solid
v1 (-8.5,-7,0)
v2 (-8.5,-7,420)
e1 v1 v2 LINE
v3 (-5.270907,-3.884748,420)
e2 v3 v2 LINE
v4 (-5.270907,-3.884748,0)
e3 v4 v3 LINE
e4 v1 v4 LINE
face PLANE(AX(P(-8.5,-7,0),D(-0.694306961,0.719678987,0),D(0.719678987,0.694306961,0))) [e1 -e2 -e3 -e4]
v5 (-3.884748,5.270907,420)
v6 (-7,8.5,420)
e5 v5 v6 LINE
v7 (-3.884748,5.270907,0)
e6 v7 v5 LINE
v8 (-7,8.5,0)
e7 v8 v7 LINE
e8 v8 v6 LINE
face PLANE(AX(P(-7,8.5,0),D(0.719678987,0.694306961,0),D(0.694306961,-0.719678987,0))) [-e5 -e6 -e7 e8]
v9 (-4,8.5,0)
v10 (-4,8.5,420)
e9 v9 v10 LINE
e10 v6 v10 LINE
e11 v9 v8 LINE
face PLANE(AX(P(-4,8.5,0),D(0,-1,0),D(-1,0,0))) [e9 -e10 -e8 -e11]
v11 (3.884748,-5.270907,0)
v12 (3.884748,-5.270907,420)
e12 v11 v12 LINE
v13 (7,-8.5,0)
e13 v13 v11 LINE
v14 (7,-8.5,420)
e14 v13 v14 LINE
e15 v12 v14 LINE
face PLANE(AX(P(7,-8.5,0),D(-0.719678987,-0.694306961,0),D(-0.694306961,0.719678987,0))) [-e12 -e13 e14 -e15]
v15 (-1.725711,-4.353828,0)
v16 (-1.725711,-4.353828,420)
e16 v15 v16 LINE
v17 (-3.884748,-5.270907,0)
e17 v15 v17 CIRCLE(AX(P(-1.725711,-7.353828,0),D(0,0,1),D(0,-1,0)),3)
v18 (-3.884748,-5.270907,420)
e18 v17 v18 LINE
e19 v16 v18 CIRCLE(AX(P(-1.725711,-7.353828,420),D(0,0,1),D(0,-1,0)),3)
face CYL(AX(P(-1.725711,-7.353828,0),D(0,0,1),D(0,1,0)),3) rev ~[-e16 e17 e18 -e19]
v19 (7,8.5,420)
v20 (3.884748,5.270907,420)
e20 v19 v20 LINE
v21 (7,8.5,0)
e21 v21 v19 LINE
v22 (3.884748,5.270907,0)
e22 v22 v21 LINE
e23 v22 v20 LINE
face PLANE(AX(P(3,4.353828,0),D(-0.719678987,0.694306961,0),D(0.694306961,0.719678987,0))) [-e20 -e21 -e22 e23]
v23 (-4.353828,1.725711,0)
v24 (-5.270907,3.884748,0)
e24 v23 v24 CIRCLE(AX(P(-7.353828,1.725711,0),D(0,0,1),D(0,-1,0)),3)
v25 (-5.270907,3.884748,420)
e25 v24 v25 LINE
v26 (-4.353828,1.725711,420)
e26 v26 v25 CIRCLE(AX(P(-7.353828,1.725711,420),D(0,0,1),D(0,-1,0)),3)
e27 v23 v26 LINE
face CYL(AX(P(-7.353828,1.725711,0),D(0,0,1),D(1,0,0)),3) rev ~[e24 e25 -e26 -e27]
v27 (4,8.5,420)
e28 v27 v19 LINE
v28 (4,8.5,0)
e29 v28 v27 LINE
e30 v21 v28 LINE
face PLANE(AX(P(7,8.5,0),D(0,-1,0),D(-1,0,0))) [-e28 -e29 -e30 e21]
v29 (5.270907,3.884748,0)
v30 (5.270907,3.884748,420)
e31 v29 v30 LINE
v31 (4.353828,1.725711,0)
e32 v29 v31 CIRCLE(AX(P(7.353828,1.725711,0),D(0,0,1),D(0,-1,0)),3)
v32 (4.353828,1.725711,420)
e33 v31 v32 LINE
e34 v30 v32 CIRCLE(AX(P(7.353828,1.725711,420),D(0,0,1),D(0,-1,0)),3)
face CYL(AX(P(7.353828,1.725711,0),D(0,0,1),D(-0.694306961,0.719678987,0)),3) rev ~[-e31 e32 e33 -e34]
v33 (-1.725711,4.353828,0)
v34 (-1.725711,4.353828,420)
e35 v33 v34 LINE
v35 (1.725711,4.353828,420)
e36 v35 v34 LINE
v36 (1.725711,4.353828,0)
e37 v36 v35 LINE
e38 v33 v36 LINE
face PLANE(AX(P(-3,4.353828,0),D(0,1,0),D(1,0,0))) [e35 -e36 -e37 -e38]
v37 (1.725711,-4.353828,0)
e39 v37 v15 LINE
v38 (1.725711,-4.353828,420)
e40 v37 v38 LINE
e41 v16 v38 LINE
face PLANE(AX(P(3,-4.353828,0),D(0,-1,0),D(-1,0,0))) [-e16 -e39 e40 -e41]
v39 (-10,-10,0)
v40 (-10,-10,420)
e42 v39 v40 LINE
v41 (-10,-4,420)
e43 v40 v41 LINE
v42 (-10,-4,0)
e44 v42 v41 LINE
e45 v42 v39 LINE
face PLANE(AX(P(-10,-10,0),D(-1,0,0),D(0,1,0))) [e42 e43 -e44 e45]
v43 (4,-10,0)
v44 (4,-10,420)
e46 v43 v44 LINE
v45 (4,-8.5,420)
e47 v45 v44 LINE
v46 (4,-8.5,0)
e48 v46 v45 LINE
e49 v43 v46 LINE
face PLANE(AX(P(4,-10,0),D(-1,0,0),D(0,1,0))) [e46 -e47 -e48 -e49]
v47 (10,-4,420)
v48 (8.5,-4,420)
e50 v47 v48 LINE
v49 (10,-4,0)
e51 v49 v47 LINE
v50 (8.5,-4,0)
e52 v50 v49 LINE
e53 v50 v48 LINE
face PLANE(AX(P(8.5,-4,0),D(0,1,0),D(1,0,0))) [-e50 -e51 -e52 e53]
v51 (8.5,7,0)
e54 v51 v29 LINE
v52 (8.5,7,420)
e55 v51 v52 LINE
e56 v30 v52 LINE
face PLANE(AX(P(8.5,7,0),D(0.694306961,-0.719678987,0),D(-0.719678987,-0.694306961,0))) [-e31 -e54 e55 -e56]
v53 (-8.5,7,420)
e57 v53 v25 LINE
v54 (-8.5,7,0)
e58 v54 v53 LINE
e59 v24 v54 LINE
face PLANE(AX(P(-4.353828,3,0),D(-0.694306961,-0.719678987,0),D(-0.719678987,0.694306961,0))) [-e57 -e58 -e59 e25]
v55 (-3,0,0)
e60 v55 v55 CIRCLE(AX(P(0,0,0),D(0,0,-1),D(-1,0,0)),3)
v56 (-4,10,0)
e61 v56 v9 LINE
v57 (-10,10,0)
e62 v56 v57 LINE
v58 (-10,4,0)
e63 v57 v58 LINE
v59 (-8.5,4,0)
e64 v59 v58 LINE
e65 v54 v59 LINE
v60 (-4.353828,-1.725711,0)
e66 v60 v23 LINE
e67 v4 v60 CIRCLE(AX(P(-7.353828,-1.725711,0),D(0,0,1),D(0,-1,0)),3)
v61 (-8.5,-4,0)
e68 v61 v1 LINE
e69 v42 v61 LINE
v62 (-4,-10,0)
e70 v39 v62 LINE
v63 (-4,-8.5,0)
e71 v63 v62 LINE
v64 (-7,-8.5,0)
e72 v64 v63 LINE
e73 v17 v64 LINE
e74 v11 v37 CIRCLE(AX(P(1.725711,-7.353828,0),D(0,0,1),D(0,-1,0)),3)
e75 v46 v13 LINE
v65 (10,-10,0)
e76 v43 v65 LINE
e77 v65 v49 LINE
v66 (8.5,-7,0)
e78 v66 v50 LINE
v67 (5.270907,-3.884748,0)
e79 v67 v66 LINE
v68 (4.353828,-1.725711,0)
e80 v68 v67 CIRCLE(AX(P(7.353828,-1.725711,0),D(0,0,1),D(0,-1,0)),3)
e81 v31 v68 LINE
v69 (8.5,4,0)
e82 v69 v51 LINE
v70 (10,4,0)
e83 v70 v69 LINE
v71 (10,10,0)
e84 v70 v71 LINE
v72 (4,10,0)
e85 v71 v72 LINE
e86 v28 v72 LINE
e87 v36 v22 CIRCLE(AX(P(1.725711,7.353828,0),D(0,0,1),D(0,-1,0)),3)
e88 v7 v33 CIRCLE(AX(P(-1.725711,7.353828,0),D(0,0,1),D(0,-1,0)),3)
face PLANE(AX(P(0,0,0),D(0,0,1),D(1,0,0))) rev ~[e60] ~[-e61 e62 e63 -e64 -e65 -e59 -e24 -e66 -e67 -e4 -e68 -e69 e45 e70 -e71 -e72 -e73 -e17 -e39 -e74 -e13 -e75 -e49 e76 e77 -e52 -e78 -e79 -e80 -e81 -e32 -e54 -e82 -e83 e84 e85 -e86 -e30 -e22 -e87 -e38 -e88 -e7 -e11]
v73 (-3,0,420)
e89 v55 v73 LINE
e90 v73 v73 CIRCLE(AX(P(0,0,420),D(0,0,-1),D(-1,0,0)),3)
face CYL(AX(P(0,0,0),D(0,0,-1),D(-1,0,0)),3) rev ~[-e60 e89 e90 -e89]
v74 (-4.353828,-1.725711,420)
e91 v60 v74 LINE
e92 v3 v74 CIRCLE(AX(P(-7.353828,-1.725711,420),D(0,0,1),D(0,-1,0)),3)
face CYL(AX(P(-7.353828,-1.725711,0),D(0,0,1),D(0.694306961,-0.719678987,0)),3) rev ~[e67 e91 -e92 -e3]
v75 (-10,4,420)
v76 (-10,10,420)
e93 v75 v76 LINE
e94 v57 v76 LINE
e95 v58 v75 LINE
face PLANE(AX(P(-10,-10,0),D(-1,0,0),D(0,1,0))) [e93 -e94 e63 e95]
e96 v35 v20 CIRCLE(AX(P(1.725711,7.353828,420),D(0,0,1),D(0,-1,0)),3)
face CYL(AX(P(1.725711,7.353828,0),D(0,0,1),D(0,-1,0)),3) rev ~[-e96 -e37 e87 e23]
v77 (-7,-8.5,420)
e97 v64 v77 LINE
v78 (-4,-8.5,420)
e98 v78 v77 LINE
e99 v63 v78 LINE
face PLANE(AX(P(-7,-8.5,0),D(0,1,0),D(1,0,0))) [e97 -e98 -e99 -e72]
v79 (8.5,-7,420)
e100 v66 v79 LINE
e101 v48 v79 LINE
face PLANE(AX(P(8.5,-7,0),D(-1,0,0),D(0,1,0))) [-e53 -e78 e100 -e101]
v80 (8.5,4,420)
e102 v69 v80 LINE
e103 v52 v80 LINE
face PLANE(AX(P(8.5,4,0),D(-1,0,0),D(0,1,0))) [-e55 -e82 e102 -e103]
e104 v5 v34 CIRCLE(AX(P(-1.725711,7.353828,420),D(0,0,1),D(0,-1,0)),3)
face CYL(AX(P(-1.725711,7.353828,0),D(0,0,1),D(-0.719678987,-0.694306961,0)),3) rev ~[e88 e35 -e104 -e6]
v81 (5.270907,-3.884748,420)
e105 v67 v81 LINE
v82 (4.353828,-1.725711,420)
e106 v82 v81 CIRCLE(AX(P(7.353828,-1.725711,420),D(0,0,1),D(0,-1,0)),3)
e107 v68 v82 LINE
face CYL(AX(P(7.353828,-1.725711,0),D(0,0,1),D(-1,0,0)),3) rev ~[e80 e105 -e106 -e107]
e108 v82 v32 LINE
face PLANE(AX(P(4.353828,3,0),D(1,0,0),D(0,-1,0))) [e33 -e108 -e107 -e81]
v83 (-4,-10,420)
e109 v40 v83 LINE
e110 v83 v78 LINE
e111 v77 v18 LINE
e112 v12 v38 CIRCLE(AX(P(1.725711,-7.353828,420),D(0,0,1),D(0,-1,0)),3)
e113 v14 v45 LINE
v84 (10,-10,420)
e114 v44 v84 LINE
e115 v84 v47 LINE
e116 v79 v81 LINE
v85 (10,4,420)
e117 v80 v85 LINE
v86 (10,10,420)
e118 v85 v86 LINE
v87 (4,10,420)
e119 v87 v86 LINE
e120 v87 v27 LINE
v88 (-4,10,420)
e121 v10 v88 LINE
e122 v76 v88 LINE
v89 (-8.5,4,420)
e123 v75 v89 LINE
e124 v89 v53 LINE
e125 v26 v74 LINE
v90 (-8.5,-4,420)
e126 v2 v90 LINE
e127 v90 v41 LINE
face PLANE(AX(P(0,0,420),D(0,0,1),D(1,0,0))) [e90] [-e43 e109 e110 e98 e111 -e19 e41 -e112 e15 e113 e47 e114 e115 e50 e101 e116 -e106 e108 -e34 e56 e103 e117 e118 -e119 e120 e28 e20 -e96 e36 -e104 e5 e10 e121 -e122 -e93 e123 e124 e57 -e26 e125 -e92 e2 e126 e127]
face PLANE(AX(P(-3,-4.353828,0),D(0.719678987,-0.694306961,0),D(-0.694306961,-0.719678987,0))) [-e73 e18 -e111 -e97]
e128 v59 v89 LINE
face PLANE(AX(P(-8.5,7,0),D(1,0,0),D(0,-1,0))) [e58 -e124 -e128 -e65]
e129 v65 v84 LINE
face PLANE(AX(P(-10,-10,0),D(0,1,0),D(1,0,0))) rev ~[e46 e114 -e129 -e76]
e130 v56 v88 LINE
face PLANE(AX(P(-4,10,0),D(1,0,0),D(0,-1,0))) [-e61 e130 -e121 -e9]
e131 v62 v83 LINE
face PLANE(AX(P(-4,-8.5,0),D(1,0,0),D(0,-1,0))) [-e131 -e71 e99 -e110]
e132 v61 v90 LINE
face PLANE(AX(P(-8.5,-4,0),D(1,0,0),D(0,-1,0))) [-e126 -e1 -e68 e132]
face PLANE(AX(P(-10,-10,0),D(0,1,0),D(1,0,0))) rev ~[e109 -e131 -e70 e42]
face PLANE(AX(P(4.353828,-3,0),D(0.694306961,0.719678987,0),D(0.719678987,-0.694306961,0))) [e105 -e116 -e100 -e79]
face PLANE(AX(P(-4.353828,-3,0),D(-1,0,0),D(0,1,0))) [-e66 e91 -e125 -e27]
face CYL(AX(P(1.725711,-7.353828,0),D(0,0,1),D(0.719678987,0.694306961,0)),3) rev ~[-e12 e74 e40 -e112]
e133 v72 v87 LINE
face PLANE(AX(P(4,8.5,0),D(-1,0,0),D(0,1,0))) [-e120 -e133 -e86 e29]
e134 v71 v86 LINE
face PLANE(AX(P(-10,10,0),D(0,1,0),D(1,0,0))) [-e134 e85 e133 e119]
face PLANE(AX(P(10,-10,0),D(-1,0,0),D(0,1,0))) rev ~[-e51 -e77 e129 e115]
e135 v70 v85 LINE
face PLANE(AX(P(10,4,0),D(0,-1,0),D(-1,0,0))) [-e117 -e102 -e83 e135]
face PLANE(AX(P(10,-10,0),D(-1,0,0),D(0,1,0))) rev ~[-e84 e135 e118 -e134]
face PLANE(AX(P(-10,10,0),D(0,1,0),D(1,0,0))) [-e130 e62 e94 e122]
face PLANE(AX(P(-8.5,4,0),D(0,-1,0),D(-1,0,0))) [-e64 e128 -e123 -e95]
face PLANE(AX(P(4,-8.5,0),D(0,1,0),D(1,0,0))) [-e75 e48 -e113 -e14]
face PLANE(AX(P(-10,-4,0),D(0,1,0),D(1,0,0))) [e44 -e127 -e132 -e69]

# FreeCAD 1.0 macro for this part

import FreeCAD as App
import Part
import Sketcher
Q = App.Units.Quantity


def edges_at(feature, points):
    """Names of the edges that pass closest to the given points."""
    edges = feature.Shape.Edges
    near = lambda p: min(range(len(edges)), key=lambda i: edges[i].distToShape(Part.Vertex(*p))[0])
    return sorted({f"Edge{near(p) + 1}" for p in points})


def add_polygon(sketch, points):
    """Adds a closed chain of lines whose ends are joined by coincident constraints."""
    first, n = sketch.GeometryCount, len(points)
    for a, b in zip(points, points[1:] + points[:1]):
        sketch.addGeometry(Part.LineSegment(App.Vector(*a, 0), App.Vector(*b, 0)), False)
    for i in range(n):
        sketch.addConstraint(Sketcher.Constraint("Coincident", first + i, 2, first + (i + 1) % n, 1))

doc = App.newDocument("Part")
body = doc.addObject("PartDesign::Body", "Body")

# Sketch on XY plane
sketch1 = body.newObject("Sketcher::SketchObject", "Sketch")
sketch1.AttachmentSupport = (doc.getObject("XY_Plane"), [""])
sketch1.MapMode = "FlatFace"
add_polygon(sketch1, [(-10, 10), (-10, -10), (10, -10), (10, 10)])  # lines 0-3
sketch1.addConstraint([
    Sketcher.Constraint("Vertical", 0),
    Sketcher.Constraint("Horizontal", 1),
    Sketcher.Constraint("Vertical", 2),
    Sketcher.Constraint("Horizontal", 3),
    Sketcher.Constraint("Symmetric", 0, 2, 2, 2, -1, 1),
    Sketcher.Constraint("Equal", 3, 0),
    Sketcher.Constraint("DistanceX", 1, 1, 1, 2, Q("20 mm")),
])
pad1 = body.newObject("PartDesign::Pad", "Pad")
pad1.Profile = sketch1
pad1.Length = 420

# Sketch on XY plane
sketch2 = body.newObject("Sketcher::SketchObject", "Sketch001")
sketch2.AttachmentSupport = (doc.getObject("XY_Plane"), [""])
sketch2.MapMode = "FlatFace"
sketch2.addGeometry(Part.Circle(App.Vector(0, 0, 0), App.Vector(0, 0, 1), 3), False)  # 0
add_polygon(sketch2, [(8.5, 4), (10, 4), (10, -4), (8.5, -4), (8.5, -7), (4.4, -3), (4.4, 3), (8.5, 7)])  # lines 1-8
add_polygon(sketch2, [(-4, 8.5), (-4, 10), (4, 10), (4, 8.5), (7, 8.5), (3, 4.4), (-3, 4.4), (-7, 8.5)])  # lines 9-16
add_polygon(sketch2, [(-8.5, -4), (-10, -4), (-10, 4), (-8.5, 4), (-8.5, 7), (-4.4, 3), (-4.4, -3), (-8.5, -7)])  # lines 17-24
add_polygon(sketch2, [(4, -8.5), (4, -10), (-4, -10), (-4, -8.5), (-7, -8.5), (-3, -4.4), (3, -4.4), (7, -8.5)])  # lines 25-32
sketch2.addConstraint([
    Sketcher.Constraint("Horizontal", 1),
    Sketcher.Constraint("Vertical", 2),
    Sketcher.Constraint("Horizontal", 3),
    Sketcher.Constraint("Vertical", 4),
    Sketcher.Constraint("Vertical", 6),
    Sketcher.Constraint("Vertical", 8),
    Sketcher.Constraint("Vertical", 9),
    Sketcher.Constraint("Horizontal", 10),
    Sketcher.Constraint("Vertical", 11),
    Sketcher.Constraint("Horizontal", 12),
    Sketcher.Constraint("Horizontal", 14),
    Sketcher.Constraint("Horizontal", 16),
    Sketcher.Constraint("Horizontal", 17),
    Sketcher.Constraint("Vertical", 18),
    Sketcher.Constraint("Horizontal", 19),
    Sketcher.Constraint("Vertical", 20),
    Sketcher.Constraint("Vertical", 22),
    Sketcher.Constraint("Vertical", 24),
    Sketcher.Constraint("Vertical", 25),
    Sketcher.Constraint("Horizontal", 26),
    Sketcher.Constraint("Vertical", 27),
    Sketcher.Constraint("Horizontal", 28),
    Sketcher.Constraint("Horizontal", 30),
    Sketcher.Constraint("Horizontal", 32),
    Sketcher.Constraint("Coincident", 0, 3, -1, 1),
    Sketcher.Constraint("Symmetric", 1, 2, 17, 2, -1, 1),
    Sketcher.Constraint("Symmetric", 3, 2, 19, 2, -1, 1),
    Sketcher.Constraint("Symmetric", 5, 2, 21, 2, -1, 1),
    Sketcher.Constraint("Symmetric", 7, 2, 23, 2, -1, 1),
    Sketcher.Constraint("Symmetric", 9, 2, 25, 2, -1, 1),
    Sketcher.Constraint("Symmetric", 11, 2, 27, 2, -1, 1),
    Sketcher.Constraint("Symmetric", 13, 2, 29, 2, -1, 1),
    Sketcher.Constraint("Symmetric", 15, 2, 31, 2, -1, 1),
    Sketcher.Constraint("Symmetric", 12, 2, 15, 2, -2),
    Sketcher.Constraint("Symmetric", 8, 2, 19, 2, -2),
    Sketcher.Constraint("Perpendicular", 5, 13),
    Sketcher.Constraint("Perpendicular", 7, 15),
    Sketcher.Constraint("Perpendicular", 13, 21),
    Sketcher.Constraint("Perpendicular", 15, 23),
    Sketcher.Constraint("Perpendicular", 21, 29),
    Sketcher.Constraint("Perpendicular", 23, 31),
    Sketcher.Constraint("Horizontal", 7, 2, 20, 2),
    Sketcher.Constraint("Horizontal", 6, 2, 21, 2),
    Sketcher.Constraint("Vertical", 11, 2, 25, 2),
    Sketcher.Constraint("Equal", 26, 2),
    Sketcher.Constraint("Equal", 32, 4),
    Sketcher.Constraint("Equal", 30, 6),
    Sketcher.Constraint("Equal", 19, 9),
    Sketcher.Constraint("Diameter", 0, Q("6 mm")),
    Sketcher.Constraint("DistanceX", 10, 1, 10, 2, Q("8 mm")),
    Sketcher.Constraint("DistanceX", 12, 1, 12, 2, Q("3 mm")),
    Sketcher.Constraint("DistanceX", 14, 2, 14, 1, Q("6 mm")),
    Sketcher.Constraint("DistanceX", 1, 1, 1, 2, Q("1.5 mm")),
    Sketcher.Constraint("DistanceX", -1, 1, 1, 2, Q("10 mm")),
    Sketcher.Constraint("DistanceY", -1, 1, 9, 2, Q("10 mm")),
    Sketcher.Constraint("Distance", 5, Q("5.761141 mm")),
])
pocket1 = body.newObject("PartDesign::Pocket", "Pocket")
pocket1.Profile = sketch2
pocket1.Type = "ThroughAll"
pocket1.Midplane = True
doc.recompute()

fillet = body.newObject("PartDesign::Fillet", "Fillet")
fillet.Base = (pocket1, edges_at(pocket1, [
    (-3, 4.354, 210),
    (3, 4.354, 210),
    (4.354, 3, 210),
    (4.354, -3, 210),
    (3, -4.354, 210),
    (-3, -4.354, 210),
    (-4.354, -3, 210),
    (-4.354, 3, 210),
]))
fillet.Radius = 3

doc.recompute()
